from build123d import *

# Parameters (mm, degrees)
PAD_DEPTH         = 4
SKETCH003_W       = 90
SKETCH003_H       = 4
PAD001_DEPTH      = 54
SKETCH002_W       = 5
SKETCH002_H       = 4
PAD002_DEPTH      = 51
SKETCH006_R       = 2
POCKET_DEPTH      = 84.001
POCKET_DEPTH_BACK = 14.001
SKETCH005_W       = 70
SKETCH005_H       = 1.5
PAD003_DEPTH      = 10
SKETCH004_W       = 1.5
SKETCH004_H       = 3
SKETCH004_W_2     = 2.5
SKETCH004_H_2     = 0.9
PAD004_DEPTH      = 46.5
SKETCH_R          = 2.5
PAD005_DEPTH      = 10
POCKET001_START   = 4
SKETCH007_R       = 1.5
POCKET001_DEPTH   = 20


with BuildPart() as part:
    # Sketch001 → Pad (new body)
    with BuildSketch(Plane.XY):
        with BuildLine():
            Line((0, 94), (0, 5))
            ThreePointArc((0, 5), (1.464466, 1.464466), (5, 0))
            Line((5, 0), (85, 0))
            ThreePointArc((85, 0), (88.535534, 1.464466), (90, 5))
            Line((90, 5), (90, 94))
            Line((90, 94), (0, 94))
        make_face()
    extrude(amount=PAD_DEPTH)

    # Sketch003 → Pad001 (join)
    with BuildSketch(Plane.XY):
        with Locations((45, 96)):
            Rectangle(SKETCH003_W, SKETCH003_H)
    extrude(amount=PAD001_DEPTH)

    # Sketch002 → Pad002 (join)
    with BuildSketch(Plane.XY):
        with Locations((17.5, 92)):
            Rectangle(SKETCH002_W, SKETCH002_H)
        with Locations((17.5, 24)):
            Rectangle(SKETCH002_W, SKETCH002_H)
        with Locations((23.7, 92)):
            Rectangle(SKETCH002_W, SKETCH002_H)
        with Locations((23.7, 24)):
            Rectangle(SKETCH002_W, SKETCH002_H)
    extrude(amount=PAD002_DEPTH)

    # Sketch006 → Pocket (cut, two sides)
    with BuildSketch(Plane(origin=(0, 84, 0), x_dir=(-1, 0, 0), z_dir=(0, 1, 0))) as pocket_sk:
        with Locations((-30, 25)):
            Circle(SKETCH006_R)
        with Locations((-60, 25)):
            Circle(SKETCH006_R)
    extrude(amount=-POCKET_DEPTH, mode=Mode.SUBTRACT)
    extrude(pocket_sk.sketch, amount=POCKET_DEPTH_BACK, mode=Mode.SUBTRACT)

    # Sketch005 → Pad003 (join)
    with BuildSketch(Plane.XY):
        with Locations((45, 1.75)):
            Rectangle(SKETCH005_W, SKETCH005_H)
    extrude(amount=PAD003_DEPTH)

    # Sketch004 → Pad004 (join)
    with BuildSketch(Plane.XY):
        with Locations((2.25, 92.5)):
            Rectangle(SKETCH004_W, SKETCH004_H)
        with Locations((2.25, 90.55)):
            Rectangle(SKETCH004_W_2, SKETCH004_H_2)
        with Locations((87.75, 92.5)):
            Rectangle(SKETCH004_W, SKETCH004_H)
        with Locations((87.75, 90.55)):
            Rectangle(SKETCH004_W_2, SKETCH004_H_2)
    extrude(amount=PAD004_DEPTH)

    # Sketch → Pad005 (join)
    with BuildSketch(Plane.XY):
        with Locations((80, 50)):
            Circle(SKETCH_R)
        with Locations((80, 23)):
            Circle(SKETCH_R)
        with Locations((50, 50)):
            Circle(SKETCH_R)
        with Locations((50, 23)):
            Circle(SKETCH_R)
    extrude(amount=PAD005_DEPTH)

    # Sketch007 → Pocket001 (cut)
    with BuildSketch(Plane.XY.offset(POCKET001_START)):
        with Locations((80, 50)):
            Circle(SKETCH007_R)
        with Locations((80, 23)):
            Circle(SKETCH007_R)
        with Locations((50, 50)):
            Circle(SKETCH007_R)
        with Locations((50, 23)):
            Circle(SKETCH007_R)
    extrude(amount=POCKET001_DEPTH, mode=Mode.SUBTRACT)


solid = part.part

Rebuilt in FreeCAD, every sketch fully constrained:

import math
import FreeCAD as App
import Part
import Sketcher

V = App.Vector

doc = App.newDocument("Part")
body = doc.addObject("PartDesign::Body", "Body")

sketch1 = body.newObject("Sketcher::SketchObject", "Sketch")
sketch1.AttachmentSupport = (doc.getObject("XY_Plane"), [""])
sketch1.MapMode = "FlatFace"
sketch1.addGeometry(Part.LineSegment(V(0, 94, 0), V(0, 5, 0)), False)
sketch1.addGeometry(Part.ArcOfCircle(Part.Circle(V(5, 5, 0), V(0, 0, 1), 5), math.radians(180), math.radians(270)), False)
sketch1.addGeometry(Part.LineSegment(V(5, 0, 0), V(85, 0, 0)), False)
sketch1.addGeometry(Part.ArcOfCircle(Part.Circle(V(85, 5, 0), V(0, 0, 1), 5), math.radians(-90), math.radians(0)), False)
sketch1.addGeometry(Part.LineSegment(V(90, 5, 0), V(90, 94, 0)), False)
sketch1.addGeometry(Part.LineSegment(V(90, 94, 0), V(0, 94, 0)), False)
sketch1.addConstraint(Sketcher.Constraint("Tangent", 0, 2, 1, 1))
sketch1.addConstraint(Sketcher.Constraint("Tangent", 1, 2, 2, 1))
sketch1.addConstraint(Sketcher.Constraint("Tangent", 2, 2, 3, 1))
sketch1.addConstraint(Sketcher.Constraint("Tangent", 3, 2, 4, 1))
sketch1.addConstraint(Sketcher.Constraint("Coincident", 4, 2, 5, 1))
sketch1.addConstraint(Sketcher.Constraint("Coincident", 5, 2, 0, 1))
sketch1.addConstraint(Sketcher.Constraint("Vertical", 0))
sketch1.addConstraint(Sketcher.Constraint("Horizontal", 2))
sketch1.addConstraint(Sketcher.Constraint("Vertical", 4))
sketch1.addConstraint(Sketcher.Constraint("Horizontal", 5))
sketch1.addConstraint(Sketcher.Constraint("Equal", 1, 3))
sketch1.addConstraint(Sketcher.Constraint("PointOnObject", 0, 2, -2))
sketch1.addConstraint(Sketcher.Constraint("PointOnObject", 1, 2, -1))
sketch1.addConstraint(Sketcher.Constraint("Radius", 1, 5.0))
sketch1.addConstraint(Sketcher.Constraint("DistanceX", 2, 1, 2, 2, 80.0))
sketch1.addConstraint(Sketcher.Constraint("DistanceY", 0, 2, 0, 1, 89.0))
pad1 = body.newObject("PartDesign::Pad", "Pad")
pad1.Profile = sketch1
pad1.Length = 4

sketch2 = body.newObject("Sketcher::SketchObject", "Sketch001")
sketch2.AttachmentSupport = (doc.getObject("XY_Plane"), [""])
sketch2.MapMode = "FlatFace"
sketch2.addGeometry(Part.LineSegment(V(0, 98, 0), V(0, 94, 0)), False)
sketch2.addGeometry(Part.LineSegment(V(0, 94, 0), V(90, 94, 0)), False)
sketch2.addGeometry(Part.LineSegment(V(90, 94, 0), V(90, 98, 0)), False)
sketch2.addGeometry(Part.LineSegment(V(90, 98, 0), V(0, 98, 0)), False)
sketch2.addConstraint(Sketcher.Constraint("Coincident", 0, 2, 1, 1))
sketch2.addConstraint(Sketcher.Constraint("Coincident", 1, 2, 2, 1))
sketch2.addConstraint(Sketcher.Constraint("Coincident", 2, 2, 3, 1))
sketch2.addConstraint(Sketcher.Constraint("Coincident", 3, 2, 0, 1))
sketch2.addConstraint(Sketcher.Constraint("Vertical", 0))
sketch2.addConstraint(Sketcher.Constraint("Horizontal", 1))
sketch2.addConstraint(Sketcher.Constraint("Vertical", 2))
sketch2.addConstraint(Sketcher.Constraint("Horizontal", 3))
sketch2.addConstraint(Sketcher.Constraint("PointOnObject", 0, 2, -2))
sketch2.addConstraint(Sketcher.Constraint("DistanceX", 1, 1, 1, 2, 90.0))
sketch2.addConstraint(Sketcher.Constraint("DistanceY", 0, 2, 0, 1, 4.0))
sketch2.addConstraint(Sketcher.Constraint("DistanceY", -1, 1, 0, 2, 94.0))
pad2 = body.newObject("PartDesign::Pad", "Pad001")
pad2.Profile = sketch2
pad2.Length = 54

sketch3 = body.newObject("Sketcher::SketchObject", "Sketch002")
sketch3.AttachmentSupport = (doc.getObject("XY_Plane"), [""])
sketch3.MapMode = "FlatFace"
sketch3.addGeometry(Part.LineSegment(V(15, 94, 0), V(15, 90, 0)), False)
sketch3.addGeometry(Part.LineSegment(V(15, 90, 0), V(20, 90, 0)), False)
sketch3.addGeometry(Part.LineSegment(V(20, 90, 0), V(20, 94, 0)), False)
sketch3.addGeometry(Part.LineSegment(V(20, 94, 0), V(15, 94, 0)), False)
sketch3.addGeometry(Part.LineSegment(V(15, 26, 0), V(15, 22, 0)), False)
sketch3.addGeometry(Part.LineSegment(V(15, 22, 0), V(20, 22, 0)), False)
sketch3.addGeometry(Part.LineSegment(V(20, 22, 0), V(20, 26, 0)), False)
sketch3.addGeometry(Part.LineSegment(V(20, 26, 0), V(15, 26, 0)), False)
sketch3.addGeometry(Part.LineSegment(V(21.2, 94, 0), V(21.2, 90, 0)), False)
sketch3.addGeometry(Part.LineSegment(V(21.2, 90, 0), V(26.2, 90, 0)), False)
sketch3.addGeometry(Part.LineSegment(V(26.2, 90, 0), V(26.2, 94, 0)), False)
sketch3.addGeometry(Part.LineSegment(V(26.2, 94, 0), V(21.2, 94, 0)), False)
sketch3.addGeometry(Part.LineSegment(V(21.2, 26, 0), V(21.2, 22, 0)), False)
sketch3.addGeometry(Part.LineSegment(V(21.2, 22, 0), V(26.2, 22, 0)), False)
sketch3.addGeometry(Part.LineSegment(V(26.2, 22, 0), V(26.2, 26, 0)), False)
sketch3.addGeometry(Part.LineSegment(V(26.2, 26, 0), V(21.2, 26, 0)), False)
sketch3.addConstraint(Sketcher.Constraint("Coincident", 0, 2, 1, 1))
sketch3.addConstraint(Sketcher.Constraint("Coincident", 1, 2, 2, 1))
sketch3.addConstraint(Sketcher.Constraint("Coincident", 2, 2, 3, 1))
sketch3.addConstraint(Sketcher.Constraint("Coincident", 3, 2, 0, 1))
sketch3.addConstraint(Sketcher.Constraint("Coincident", 4, 2, 5, 1))
sketch3.addConstraint(Sketcher.Constraint("Coincident", 5, 2, 6, 1))
sketch3.addConstraint(Sketcher.Constraint("Coincident", 6, 2, 7, 1))
sketch3.addConstraint(Sketcher.Constraint("Coincident", 7, 2, 4, 1))
sketch3.addConstraint(Sketcher.Constraint("Coincident", 8, 2, 9, 1))
sketch3.addConstraint(Sketcher.Constraint("Coincident", 9, 2, 10, 1))
sketch3.addConstraint(Sketcher.Constraint("Coincident", 10, 2, 11, 1))
sketch3.addConstraint(Sketcher.Constraint("Coincident", 11, 2, 8, 1))
sketch3.addConstraint(Sketcher.Constraint("Coincident", 12, 2, 13, 1))
sketch3.addConstraint(Sketcher.Constraint("Coincident", 13, 2, 14, 1))
sketch3.addConstraint(Sketcher.Constraint("Coincident", 14, 2, 15, 1))
sketch3.addConstraint(Sketcher.Constraint("Coincident", 15, 2, 12, 1))
sketch3.addConstraint(Sketcher.Constraint("Vertical", 0))
sketch3.addConstraint(Sketcher.Constraint("Horizontal", 1))
sketch3.addConstraint(Sketcher.Constraint("Vertical", 2))
sketch3.addConstraint(Sketcher.Constraint("Horizontal", 3))
sketch3.addConstraint(Sketcher.Constraint("Vertical", 4))
sketch3.addConstraint(Sketcher.Constraint("Horizontal", 5))
sketch3.addConstraint(Sketcher.Constraint("Vertical", 6))
sketch3.addConstraint(Sketcher.Constraint("Horizontal", 7))
sketch3.addConstraint(Sketcher.Constraint("Vertical", 8))
sketch3.addConstraint(Sketcher.Constraint("Horizontal", 9))
sketch3.addConstraint(Sketcher.Constraint("Vertical", 10))
sketch3.addConstraint(Sketcher.Constraint("Horizontal", 11))
sketch3.addConstraint(Sketcher.Constraint("Vertical", 12))
sketch3.addConstraint(Sketcher.Constraint("Horizontal", 13))
sketch3.addConstraint(Sketcher.Constraint("Vertical", 14))
sketch3.addConstraint(Sketcher.Constraint("Horizontal", 15))
sketch3.addConstraint(Sketcher.Constraint("Horizontal", 1, 2, 8, 2))
sketch3.addConstraint(Sketcher.Constraint("Horizontal", 3, 2, 10, 2))
sketch3.addConstraint(Sketcher.Constraint("Horizontal", 5, 2, 12, 2))
sketch3.addConstraint(Sketcher.Constraint("Horizontal", 7, 2, 14, 2))
sketch3.addConstraint(Sketcher.Constraint("Vertical", 3, 2, 4, 2))
sketch3.addConstraint(Sketcher.Constraint("Vertical", 2, 2, 5, 2))
sketch3.addConstraint(Sketcher.Constraint("Vertical", 11, 2, 12, 2))
sketch3.addConstraint(Sketcher.Constraint("Vertical", 10, 2, 13, 2))
sketch3.addConstraint(Sketcher.Constraint("Equal", 7, 9))
sketch3.addConstraint(Sketcher.Constraint("Equal", 2, 4))
sketch3.addConstraint(Sketcher.Constraint("DistanceX", 1, 1, 1, 2, 5.0))
sketch3.addConstraint(Sketcher.Constraint("DistanceY", 0, 2, 0, 1, 4.0))
sketch3.addConstraint(Sketcher.Constraint("DistanceX", -1, 1, 0, 2, 15.0))
sketch3.addConstraint(Sketcher.Constraint("DistanceY", -1, 1, 0, 2, 90.0))
sketch3.addConstraint(Sketcher.Constraint("DistanceY", -1, 1, 4, 2, 22.0))
sketch3.addConstraint(Sketcher.Constraint("DistanceX", -1, 1, 8, 2, 21.2))
pad3 = body.newObject("PartDesign::Pad", "Pad002")
pad3.Profile = sketch3
pad3.Length = 51

sketch4 = body.newObject("Sketcher::SketchObject", "Sketch003")
sketch4.AttachmentSupport = (doc.getObject("XZ_Plane"), [""])
sketch4.MapMode = "FlatFace"
sketch4.AttachmentOffset = App.Placement(V(0, 0, -84), App.Rotation())
sketch4.addGeometry(Part.Circle(V(30, 25, 0), V(0, 0, 1), 2), False)
sketch4.addGeometry(Part.Circle(V(60, 25, 0), V(0, 0, 1), 2), False)
sketch4.addConstraint(Sketcher.Constraint("Equal", 0, 1))
sketch4.addConstraint(Sketcher.Constraint("Horizontal", 0, 3, 1, 3))
sketch4.addConstraint(Sketcher.Constraint("Diameter", 0, 4.0))
sketch4.addConstraint(Sketcher.Constraint("DistanceX", -1, 1, 0, 3, 30.0))
sketch4.addConstraint(Sketcher.Constraint("DistanceY", -1, 1, 0, 3, 25.0))
sketch4.addConstraint(Sketcher.Constraint("DistanceX", -1, 1, 1, 3, 60.0))
pocket1 = body.newObject("PartDesign::Pocket", "Pocket")
pocket1.Profile = sketch4
pocket1.Type = "ThroughAll"
pocket1.Midplane = True

sketch5 = body.newObject("Sketcher::SketchObject", "Sketch004")
sketch5.AttachmentSupport = (doc.getObject("XY_Plane"), [""])
sketch5.MapMode = "FlatFace"
sketch5.addGeometry(Part.LineSegment(V(10, 2.5, 0), V(10, 1, 0)), False)
sketch5.addGeometry(Part.LineSegment(V(10, 1, 0), V(80, 1, 0)), False)
sketch5.addGeometry(Part.LineSegment(V(80, 1, 0), V(80, 2.5, 0)), False)
sketch5.addGeometry(Part.LineSegment(V(80, 2.5, 0), V(10, 2.5, 0)), False)
sketch5.addConstraint(Sketcher.Constraint("Coincident", 0, 2, 1, 1))
sketch5.addConstraint(Sketcher.Constraint("Coincident", 1, 2, 2, 1))
sketch5.addConstraint(Sketcher.Constraint("Coincident", 2, 2, 3, 1))
sketch5.addConstraint(Sketcher.Constraint("Coincident", 3, 2, 0, 1))
sketch5.addConstraint(Sketcher.Constraint("Vertical", 0))
sketch5.addConstraint(Sketcher.Constraint("Horizontal", 1))
sketch5.addConstraint(Sketcher.Constraint("Vertical", 2))
sketch5.addConstraint(Sketcher.Constraint("Horizontal", 3))
sketch5.addConstraint(Sketcher.Constraint("DistanceX", 1, 1, 1, 2, 70.0))
sketch5.addConstraint(Sketcher.Constraint("DistanceY", 0, 2, 0, 1, 1.5))
sketch5.addConstraint(Sketcher.Constraint("DistanceX", -1, 1, 0, 2, 10.0))
sketch5.addConstraint(Sketcher.Constraint("DistanceY", -1, 1, 0, 2, 1.0))
pad4 = body.newObject("PartDesign::Pad", "Pad003")
pad4.Profile = sketch5
pad4.Length = 10

sketch6 = body.newObject("Sketcher::SketchObject", "Sketch005")
sketch6.AttachmentSupport = (doc.getObject("XY_Plane"), [""])
sketch6.MapMode = "FlatFace"
sketch6.addGeometry(Part.LineSegment(V(1.5, 94, 0), V(1.5, 91, 0)), False)
sketch6.addGeometry(Part.LineSegment(V(1.5, 91, 0), V(1, 91, 0)), False)
sketch6.addGeometry(Part.LineSegment(V(1, 91, 0), V(1, 90.1, 0)), False)
sketch6.addGeometry(Part.LineSegment(V(1, 90.1, 0), V(3.5, 90.1, 0)), False)
sketch6.addGeometry(Part.LineSegment(V(3.5, 90.1, 0), V(3.5, 91, 0)), False)
sketch6.addGeometry(Part.LineSegment(V(3.5, 91, 0), V(3, 91, 0)), False)
sketch6.addGeometry(Part.LineSegment(V(3, 91, 0), V(3, 94, 0)), False)
sketch6.addGeometry(Part.LineSegment(V(3, 94, 0), V(1.5, 94, 0)), False)
sketch6.addGeometry(Part.LineSegment(V(87, 94, 0), V(87, 91, 0)), False)
sketch6.addGeometry(Part.LineSegment(V(87, 91, 0), V(86.5, 91, 0)), False)
sketch6.addGeometry(Part.LineSegment(V(86.5, 91, 0), V(86.5, 90.1, 0)), False)
sketch6.addGeometry(Part.LineSegment(V(86.5, 90.1, 0), V(89, 90.1, 0)), False)
sketch6.addGeometry(Part.LineSegment(V(89, 90.1, 0), V(89, 91, 0)), False)
sketch6.addGeometry(Part.LineSegment(V(89, 91, 0), V(88.5, 91, 0)), False)
sketch6.addGeometry(Part.LineSegment(V(88.5, 91, 0), V(88.5, 94, 0)), False)
sketch6.addGeometry(Part.LineSegment(V(88.5, 94, 0), V(87, 94, 0)), False)
sketch6.addConstraint(Sketcher.Constraint("Coincident", 0, 2, 1, 1))
sketch6.addConstraint(Sketcher.Constraint("Coincident", 1, 2, 2, 1))
sketch6.addConstraint(Sketcher.Constraint("Coincident", 2, 2, 3, 1))
sketch6.addConstraint(Sketcher.Constraint("Coincident", 3, 2, 4, 1))
sketch6.addConstraint(Sketcher.Constraint("Coincident", 4, 2, 5, 1))
sketch6.addConstraint(Sketcher.Constraint("Coincident", 5, 2, 6, 1))
sketch6.addConstraint(Sketcher.Constraint("Coincident", 6, 2, 7, 1))
sketch6.addConstraint(Sketcher.Constraint("Coincident", 7, 2, 0, 1))
sketch6.addConstraint(Sketcher.Constraint("Coincident", 8, 2, 9, 1))
sketch6.addConstraint(Sketcher.Constraint("Coincident", 9, 2, 10, 1))
sketch6.addConstraint(Sketcher.Constraint("Coincident", 10, 2, 11, 1))
sketch6.addConstraint(Sketcher.Constraint("Coincident", 11, 2, 12, 1))
sketch6.addConstraint(Sketcher.Constraint("Coincident", 12, 2, 13, 1))
sketch6.addConstraint(Sketcher.Constraint("Coincident", 13, 2, 14, 1))
sketch6.addConstraint(Sketcher.Constraint("Coincident", 14, 2, 15, 1))
sketch6.addConstraint(Sketcher.Constraint("Coincident", 15, 2, 8, 1))
sketch6.addConstraint(Sketcher.Constraint("Vertical", 0))
sketch6.addConstraint(Sketcher.Constraint("Horizontal", 1))
sketch6.addConstraint(Sketcher.Constraint("Vertical", 2))
sketch6.addConstraint(Sketcher.Constraint("Horizontal", 3))
sketch6.addConstraint(Sketcher.Constraint("Vertical", 4))
sketch6.addConstraint(Sketcher.Constraint("Horizontal", 5))
sketch6.addConstraint(Sketcher.Constraint("Vertical", 6))
sketch6.addConstraint(Sketcher.Constraint("Horizontal", 7))
sketch6.addConstraint(Sketcher.Constraint("Vertical", 8))
sketch6.addConstraint(Sketcher.Constraint("Horizontal", 9))
sketch6.addConstraint(Sketcher.Constraint("Vertical", 10))
sketch6.addConstraint(Sketcher.Constraint("Horizontal", 11))
sketch6.addConstraint(Sketcher.Constraint("Vertical", 12))
sketch6.addConstraint(Sketcher.Constraint("Horizontal", 13))
sketch6.addConstraint(Sketcher.Constraint("Vertical", 14))
sketch6.addConstraint(Sketcher.Constraint("Horizontal", 15))
sketch6.addConstraint(Sketcher.Constraint("Horizontal", 1, 2, 4, 2))
sketch6.addConstraint(Sketcher.Constraint("Horizontal", 5, 2, 8, 2))
sketch6.addConstraint(Sketcher.Constraint("Horizontal", 3, 2, 10, 2))
sketch6.addConstraint(Sketcher.Constraint("Horizontal", 9, 2, 12, 2))
sketch6.addConstraint(Sketcher.Constraint("Horizontal", 7, 2, 14, 2))
sketch6.addConstraint(Sketcher.Constraint("Equal", 1, 5))
sketch6.addConstraint(Sketcher.Constraint("Equal", 5, 9))
sketch6.addConstraint(Sketcher.Constraint("Equal", 3, 11))
sketch6.addConstraint(Sketcher.Constraint("Equal", 9, 13))
sketch6.addConstraint(Sketcher.Constraint("DistanceY", 0, 2, 0, 1, 3.0))
sketch6.addConstraint(Sketcher.Constraint("DistanceX", 1, 2, 1, 1, 0.5))
sketch6.addConstraint(Sketcher.Constraint("DistanceX", 3, 1, 3, 2, 2.5))
sketch6.addConstraint(Sketcher.Constraint("DistanceY", 2, 2, 2, 1, 0.9))
sketch6.addConstraint(Sketcher.Constraint("DistanceY", -1, 1, 0, 2, 91.0))
sketch6.addConstraint(Sketcher.Constraint("DistanceX", -1, 1, 1, 2, 1.0))
sketch6.addConstraint(Sketcher.Constraint("DistanceX", -1, 1, 8, 2, 87.0))
pad5 = body.newObject("PartDesign::Pad", "Pad004")
pad5.Profile = sketch6
pad5.Length = 46.5

sketch7 = body.newObject("Sketcher::SketchObject", "Sketch006")
sketch7.AttachmentSupport = (doc.getObject("XY_Plane"), [""])
sketch7.MapMode = "FlatFace"
sketch7.addGeometry(Part.Circle(V(80, 50, 0), V(0, 0, 1), 2.5), False)
sketch7.addGeometry(Part.Circle(V(80, 23, 0), V(0, 0, 1), 2.5), False)
sketch7.addGeometry(Part.Circle(V(50, 50, 0), V(0, 0, 1), 2.5), False)
sketch7.addGeometry(Part.Circle(V(50, 23, 0), V(0, 0, 1), 2.5), False)
sketch7.addConstraint(Sketcher.Constraint("Equal", 0, 1))
sketch7.addConstraint(Sketcher.Constraint("Equal", 1, 2))
sketch7.addConstraint(Sketcher.Constraint("Equal", 2, 3))
sketch7.addConstraint(Sketcher.Constraint("Horizontal", 0, 3, 2, 3))
sketch7.addConstraint(Sketcher.Constraint("Horizontal", 1, 3, 3, 3))
sketch7.addConstraint(Sketcher.Constraint("Vertical", 0, 3, 1, 3))
sketch7.addConstraint(Sketcher.Constraint("Vertical", 2, 3, 3, 3))
sketch7.addConstraint(Sketcher.Constraint("Diameter", 0, 5.0))
sketch7.addConstraint(Sketcher.Constraint("DistanceX", -1, 1, 0, 3, 80.0))
sketch7.addConstraint(Sketcher.Constraint("DistanceY", -1, 1, 0, 3, 50.0))
sketch7.addConstraint(Sketcher.Constraint("DistanceY", -1, 1, 1, 3, 23.0))
sketch7.addConstraint(Sketcher.Constraint("DistanceX", -1, 1, 2, 3, 50.0))
pad6 = body.newObject("PartDesign::Pad", "Pad005")
pad6.Profile = sketch7
pad6.Length = 10

sketch8 = body.newObject("Sketcher::SketchObject", "Sketch007")
sketch8.AttachmentSupport = (doc.getObject("XY_Plane"), [""])
sketch8.MapMode = "FlatFace"
sketch8.AttachmentOffset = App.Placement(V(0, 0, 4), App.Rotation())
sketch8.addGeometry(Part.Circle(V(80, 50, 0), V(0, 0, 1), 1.5), False)
sketch8.addGeometry(Part.Circle(V(80, 23, 0), V(0, 0, 1), 1.5), False)
sketch8.addGeometry(Part.Circle(V(50, 50, 0), V(0, 0, 1), 1.5), False)
sketch8.addGeometry(Part.Circle(V(50, 23, 0), V(0, 0, 1), 1.5), False)
sketch8.addConstraint(Sketcher.Constraint("Equal", 0, 1))
sketch8.addConstraint(Sketcher.Constraint("Equal", 1, 2))
sketch8.addConstraint(Sketcher.Constraint("Equal", 2, 3))
sketch8.addConstraint(Sketcher.Constraint("Horizontal", 0, 3, 2, 3))
sketch8.addConstraint(Sketcher.Constraint("Horizontal", 1, 3, 3, 3))
sketch8.addConstraint(Sketcher.Constraint("Vertical", 0, 3, 1, 3))
sketch8.addConstraint(Sketcher.Constraint("Vertical", 2, 3, 3, 3))
sketch8.addConstraint(Sketcher.Constraint("Diameter", 0, 3.0))
sketch8.addConstraint(Sketcher.Constraint("DistanceX", -1, 1, 0, 3, 80.0))
sketch8.addConstraint(Sketcher.Constraint("DistanceY", -1, 1, 0, 3, 50.0))
sketch8.addConstraint(Sketcher.Constraint("DistanceY", -1, 1, 1, 3, 23.0))
sketch8.addConstraint(Sketcher.Constraint("DistanceX", -1, 1, 2, 3, 50.0))
pocket2 = body.newObject("PartDesign::Pocket", "Pocket001")
pocket2.Profile = sketch8
pocket2.Length = 20
pocket2.Reversed = True

doc.recompute()
